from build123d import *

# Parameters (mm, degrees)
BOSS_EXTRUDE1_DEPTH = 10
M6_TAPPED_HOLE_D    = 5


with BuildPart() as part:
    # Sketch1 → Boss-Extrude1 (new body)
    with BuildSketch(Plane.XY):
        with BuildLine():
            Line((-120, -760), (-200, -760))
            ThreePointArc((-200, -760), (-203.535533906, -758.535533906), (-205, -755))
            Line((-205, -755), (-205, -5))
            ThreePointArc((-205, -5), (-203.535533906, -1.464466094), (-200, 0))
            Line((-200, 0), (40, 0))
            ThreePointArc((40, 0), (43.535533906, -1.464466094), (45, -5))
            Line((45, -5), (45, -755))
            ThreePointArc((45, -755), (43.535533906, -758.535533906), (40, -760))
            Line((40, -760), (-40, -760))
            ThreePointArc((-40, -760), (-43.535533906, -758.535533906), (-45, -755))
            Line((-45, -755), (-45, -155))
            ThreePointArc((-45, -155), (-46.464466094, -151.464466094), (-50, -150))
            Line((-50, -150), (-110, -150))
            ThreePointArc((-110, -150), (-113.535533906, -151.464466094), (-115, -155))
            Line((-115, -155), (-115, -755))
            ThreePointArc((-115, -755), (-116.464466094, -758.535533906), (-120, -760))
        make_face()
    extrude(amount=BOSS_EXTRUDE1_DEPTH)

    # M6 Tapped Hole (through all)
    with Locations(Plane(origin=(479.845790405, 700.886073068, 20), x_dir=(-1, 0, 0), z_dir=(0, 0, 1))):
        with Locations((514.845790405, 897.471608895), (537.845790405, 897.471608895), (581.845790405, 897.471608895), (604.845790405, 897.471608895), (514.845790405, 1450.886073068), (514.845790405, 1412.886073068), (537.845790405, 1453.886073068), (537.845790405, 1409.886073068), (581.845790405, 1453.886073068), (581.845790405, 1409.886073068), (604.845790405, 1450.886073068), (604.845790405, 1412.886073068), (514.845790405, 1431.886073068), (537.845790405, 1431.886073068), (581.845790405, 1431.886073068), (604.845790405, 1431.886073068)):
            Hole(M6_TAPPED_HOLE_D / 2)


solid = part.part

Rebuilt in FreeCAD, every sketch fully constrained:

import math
import FreeCAD as App
import Part
import Sketcher

doc = App.newDocument("Part")
body = doc.addObject("PartDesign::Body", "Body")

# Sketch on XY plane
sketch1 = body.newObject("Sketcher::SketchObject", "Sketch")
sketch1.AttachmentSupport = (doc.getObject("XY_Plane"), [""])
sketch1.MapMode = "FlatFace"
sketch1.addGeometry(Part.LineSegment(App.Vector(-200, -760, 0), App.Vector(-120, -760, 0)), False)
sketch1.addGeometry(Part.ArcOfCircle(Part.Circle(App.Vector(-120, -755, 0), App.Vector(0, 0, 1), 5), math.radians(-90), math.radians(0)), False)
sketch1.addGeometry(Part.LineSegment(App.Vector(-115, -755, 0), App.Vector(-115, -155, 0)), False)
sketch1.addGeometry(Part.ArcOfCircle(Part.Circle(App.Vector(-110, -155, 0), App.Vector(0, 0, 1), 5), math.radians(90), math.radians(180)), False)
sketch1.addGeometry(Part.LineSegment(App.Vector(-110, -150, 0), App.Vector(-50, -150, 0)), False)
sketch1.addGeometry(Part.ArcOfCircle(Part.Circle(App.Vector(-50, -155, 0), App.Vector(0, 0, 1), 5), math.radians(0), math.radians(90)), False)
sketch1.addGeometry(Part.LineSegment(App.Vector(-45, -155, 0), App.Vector(-45, -755, 0)), False)
sketch1.addGeometry(Part.ArcOfCircle(Part.Circle(App.Vector(-40, -755, 0), App.Vector(0, 0, 1), 5), math.radians(180), math.radians(270)), False)
sketch1.addGeometry(Part.LineSegment(App.Vector(-40, -760, 0), App.Vector(40, -760, 0)), False)
sketch1.addGeometry(Part.ArcOfCircle(Part.Circle(App.Vector(40, -755, 0), App.Vector(0, 0, 1), 5), math.radians(-90), math.radians(0)), False)
sketch1.addGeometry(Part.LineSegment(App.Vector(45, -755, 0), App.Vector(45, -5, 0)), False)
sketch1.addGeometry(Part.ArcOfCircle(Part.Circle(App.Vector(40, -5, 0), App.Vector(0, 0, 1), 5), math.radians(0), math.radians(90)), False)
sketch1.addGeometry(Part.LineSegment(App.Vector(40, 0, 0), App.Vector(-200, 0, 0)), False)
sketch1.addGeometry(Part.ArcOfCircle(Part.Circle(App.Vector(-200, -5, 0), App.Vector(0, 0, 1), 5), math.radians(90), math.radians(180)), False)
sketch1.addGeometry(Part.LineSegment(App.Vector(-205, -5, 0), App.Vector(-205, -755, 0)), False)
sketch1.addGeometry(Part.ArcOfCircle(Part.Circle(App.Vector(-200, -755, 0), App.Vector(0, 0, 1), 5), math.radians(180), math.radians(270)), False)
sketch1.addConstraint(Sketcher.Constraint("Tangent", 0, 2, 1, 1))
sketch1.addConstraint(Sketcher.Constraint("Tangent", 1, 2, 2, 1))
sketch1.addConstraint(Sketcher.Constraint("Tangent", 2, 2, 3, 2))
sketch1.addConstraint(Sketcher.Constraint("Tangent", 3, 1, 4, 1))
sketch1.addConstraint(Sketcher.Constraint("Tangent", 4, 2, 5, 2))
sketch1.addConstraint(Sketcher.Constraint("Tangent", 5, 1, 6, 1))
sketch1.addConstraint(Sketcher.Constraint("Tangent", 6, 2, 7, 1))
sketch1.addConstraint(Sketcher.Constraint("Tangent", 7, 2, 8, 1))
sketch1.addConstraint(Sketcher.Constraint("Tangent", 8, 2, 9, 1))
sketch1.addConstraint(Sketcher.Constraint("Tangent", 9, 2, 10, 1))
sketch1.addConstraint(Sketcher.Constraint("Tangent", 10, 2, 11, 1))
sketch1.addConstraint(Sketcher.Constraint("Tangent", 11, 2, 12, 1))
sketch1.addConstraint(Sketcher.Constraint("Tangent", 12, 2, 13, 1))
sketch1.addConstraint(Sketcher.Constraint("Tangent", 13, 2, 14, 1))
sketch1.addConstraint(Sketcher.Constraint("Tangent", 14, 2, 15, 1))
sketch1.addConstraint(Sketcher.Constraint("Tangent", 15, 2, 0, 1))
sketch1.addConstraint(Sketcher.Constraint("Horizontal", 0))
sketch1.addConstraint(Sketcher.Constraint("Vertical", 2))
sketch1.addConstraint(Sketcher.Constraint("Horizontal", 4))
sketch1.addConstraint(Sketcher.Constraint("Vertical", 6))
sketch1.addConstraint(Sketcher.Constraint("Horizontal", 8))
sketch1.addConstraint(Sketcher.Constraint("Vertical", 10))
sketch1.addConstraint(Sketcher.Constraint("Horizontal", 12))
sketch1.addConstraint(Sketcher.Constraint("Vertical", 14))
sketch1.addConstraint(Sketcher.Constraint("Equal", 1, 3))
sketch1.addConstraint(Sketcher.Constraint("Equal", 3, 5))
sketch1.addConstraint(Sketcher.Constraint("Equal", 5, 7))
sketch1.addConstraint(Sketcher.Constraint("Equal", 7, 9))
sketch1.addConstraint(Sketcher.Constraint("Equal", 9, 11))
sketch1.addConstraint(Sketcher.Constraint("Equal", 11, 13))
sketch1.addConstraint(Sketcher.Constraint("Equal", 13, 15))
sketch1.addConstraint(Sketcher.Constraint("PointOnObject", 11, 2, -1))
sketch1.addConstraint(Sketcher.Constraint("Horizontal", 1, 3, 7, 3))
sketch1.addConstraint(Sketcher.Constraint("Equal", 0, 8))
sketch1.addConstraint(Sketcher.Constraint("Radius", 1, 5.0))
sketch1.addConstraint(Sketcher.Constraint("DistanceX", 0, 1, 0, 2, 80.0))
sketch1.addConstraint(Sketcher.Constraint("DistanceX", 4, 1, 4, 2, 60.0))
sketch1.addConstraint(Sketcher.Constraint("DistanceY", 2, 1, 2, 2, 600.0))
sketch1.addConstraint(Sketcher.Constraint("DistanceY", 10, 1, 10, 2, 750.0))
sketch1.addConstraint(Sketcher.Constraint("DistanceX", 1, 3, -1, 1, 120.0))
pad1 = body.newObject("PartDesign::Pad", "Pad")
pad1.Profile = sketch1
pad1.Length = 10

# Sketch on XY plane
sketch2 = body.newObject("Sketcher::SketchObject", "Sketch001")
sketch2.AttachmentSupport = (doc.getObject("XY_Plane"), [""])
sketch2.MapMode = "FlatFace"
sketch2.AttachmentOffset = App.Placement(App.Vector(0, 0, 20), App.Rotation())
sketch2.addGeometry(Part.Circle(App.Vector(-35, -196.585536, 0), App.Vector(0, 0, 1), 2.5), False)
sketch2.addGeometry(Part.Circle(App.Vector(-58, -196.585536, 0), App.Vector(0, 0, 1), 2.5), False)
sketch2.addGeometry(Part.Circle(App.Vector(-102, -196.585536, 0), App.Vector(0, 0, 1), 2.5), False)
sketch2.addGeometry(Part.Circle(App.Vector(-125, -196.585536, 0), App.Vector(0, 0, 1), 2.5), False)
sketch2.addGeometry(Part.Circle(App.Vector(-35, -750, 0), App.Vector(0, 0, 1), 2.5), False)
sketch2.addGeometry(Part.Circle(App.Vector(-35, -712, 0), App.Vector(0, 0, 1), 2.5), False)
sketch2.addGeometry(Part.Circle(App.Vector(-58, -753, 0), App.Vector(0, 0, 1), 2.5), False)
sketch2.addGeometry(Part.Circle(App.Vector(-58, -709, 0), App.Vector(0, 0, 1), 2.5), False)
sketch2.addGeometry(Part.Circle(App.Vector(-102, -753, 0), App.Vector(0, 0, 1), 2.5), False)
sketch2.addGeometry(Part.Circle(App.Vector(-102, -709, 0), App.Vector(0, 0, 1), 2.5), False)
sketch2.addGeometry(Part.Circle(App.Vector(-125, -750, 0), App.Vector(0, 0, 1), 2.5), False)
sketch2.addGeometry(Part.Circle(App.Vector(-125, -712, 0), App.Vector(0, 0, 1), 2.5), False)
sketch2.addGeometry(Part.Circle(App.Vector(-35, -731, 0), App.Vector(0, 0, 1), 2.5), False)
sketch2.addGeometry(Part.Circle(App.Vector(-58, -731, 0), App.Vector(0, 0, 1), 2.5), False)
sketch2.addGeometry(Part.Circle(App.Vector(-102, -731, 0), App.Vector(0, 0, 1), 2.5), False)
sketch2.addGeometry(Part.Circle(App.Vector(-125, -731, 0), App.Vector(0, 0, 1), 2.5), False)
sketch2.addConstraint(Sketcher.Constraint("Equal", 0, 1))
sketch2.addConstraint(Sketcher.Constraint("Equal", 1, 2))
sketch2.addConstraint(Sketcher.Constraint("Equal", 2, 3))
sketch2.addConstraint(Sketcher.Constraint("Equal", 3, 4))
sketch2.addConstraint(Sketcher.Constraint("Equal", 4, 5))
sketch2.addConstraint(Sketcher.Constraint("Equal", 5, 6))
sketch2.addConstraint(Sketcher.Constraint("Equal", 6, 7))
sketch2.addConstraint(Sketcher.Constraint("Equal", 7, 8))
sketch2.addConstraint(Sketcher.Constraint("Equal", 8, 9))
sketch2.addConstraint(Sketcher.Constraint("Equal", 9, 10))
sketch2.addConstraint(Sketcher.Constraint("Equal", 10, 11))
sketch2.addConstraint(Sketcher.Constraint("Equal", 11, 12))
sketch2.addConstraint(Sketcher.Constraint("Equal", 12, 13))
sketch2.addConstraint(Sketcher.Constraint("Equal", 13, 14))
sketch2.addConstraint(Sketcher.Constraint("Equal", 14, 15))
sketch2.addConstraint(Sketcher.Constraint("Horizontal", 0, 3, 1, 3))
sketch2.addConstraint(Sketcher.Constraint("Horizontal", 1, 3, 2, 3))
sketch2.addConstraint(Sketcher.Constraint("Horizontal", 2, 3, 3, 3))
sketch2.addConstraint(Sketcher.Constraint("Horizontal", 6, 3, 8, 3))
sketch2.addConstraint(Sketcher.Constraint("Horizontal", 7, 3, 9, 3))
sketch2.addConstraint(Sketcher.Constraint("Horizontal", 4, 3, 10, 3))
sketch2.addConstraint(Sketcher.Constraint("Horizontal", 5, 3, 11, 3))
sketch2.addConstraint(Sketcher.Constraint("Horizontal", 12, 3, 13, 3))
sketch2.addConstraint(Sketcher.Constraint("Horizontal", 13, 3, 14, 3))
sketch2.addConstraint(Sketcher.Constraint("Horizontal", 14, 3, 15, 3))
sketch2.addConstraint(Sketcher.Constraint("Vertical", 0, 3, 4, 3))
sketch2.addConstraint(Sketcher.Constraint("Vertical", 4, 3, 5, 3))
sketch2.addConstraint(Sketcher.Constraint("Vertical", 1, 3, 6, 3))
sketch2.addConstraint(Sketcher.Constraint("Vertical", 6, 3, 7, 3))
sketch2.addConstraint(Sketcher.Constraint("Vertical", 2, 3, 8, 3))
sketch2.addConstraint(Sketcher.Constraint("Vertical", 8, 3, 9, 3))
sketch2.addConstraint(Sketcher.Constraint("Vertical", 3, 3, 10, 3))
sketch2.addConstraint(Sketcher.Constraint("Vertical", 10, 3, 11, 3))
sketch2.addConstraint(Sketcher.Constraint("Vertical", 5, 3, 12, 3))
sketch2.addConstraint(Sketcher.Constraint("Vertical", 7, 3, 13, 3))
sketch2.addConstraint(Sketcher.Constraint("Vertical", 9, 3, 14, 3))
sketch2.addConstraint(Sketcher.Constraint("Vertical", 11, 3, 15, 3))
sketch2.addConstraint(Sketcher.Constraint("Diameter", 0, 5.0))
sketch2.addConstraint(Sketcher.Constraint("DistanceX", 0, 3, -1, 1, 35.0))
sketch2.addConstraint(Sketcher.Constraint("DistanceX", 1, 3, -1, 1, 58.0))
sketch2.addConstraint(Sketcher.Constraint("DistanceX", 2, 3, -1, 1, 102.0))
sketch2.addConstraint(Sketcher.Constraint("DistanceX", 3, 3, -1, 1, 125.0))
sketch2.addConstraint(Sketcher.Constraint("DistanceY", 4, 3, -1, 1, 750.0))
sketch2.addConstraint(Sketcher.Constraint("DistanceY", 5, 3, -1, 1, 712.0))
sketch2.addConstraint(Sketcher.Constraint("DistanceY", 6, 3, -1, 1, 753.0))
sketch2.addConstraint(Sketcher.Constraint("DistanceY", 7, 3, -1, 1, 709.0))
sketch2.addConstraint(Sketcher.Constraint("DistanceY", 12, 3, -1, 1, 731.0))
sketch2.addConstraint(Sketcher.Constraint("DistanceY", 0, 3, -1, 1, 196.585536))
doc.recompute()
hole = body.newObject("PartDesign::Hole", "Hole")
hole.Profile = sketch2
hole.ThreadType = "None"
hole.Diameter = 5
hole.DepthType = "ThroughAll"

doc.recompute()
